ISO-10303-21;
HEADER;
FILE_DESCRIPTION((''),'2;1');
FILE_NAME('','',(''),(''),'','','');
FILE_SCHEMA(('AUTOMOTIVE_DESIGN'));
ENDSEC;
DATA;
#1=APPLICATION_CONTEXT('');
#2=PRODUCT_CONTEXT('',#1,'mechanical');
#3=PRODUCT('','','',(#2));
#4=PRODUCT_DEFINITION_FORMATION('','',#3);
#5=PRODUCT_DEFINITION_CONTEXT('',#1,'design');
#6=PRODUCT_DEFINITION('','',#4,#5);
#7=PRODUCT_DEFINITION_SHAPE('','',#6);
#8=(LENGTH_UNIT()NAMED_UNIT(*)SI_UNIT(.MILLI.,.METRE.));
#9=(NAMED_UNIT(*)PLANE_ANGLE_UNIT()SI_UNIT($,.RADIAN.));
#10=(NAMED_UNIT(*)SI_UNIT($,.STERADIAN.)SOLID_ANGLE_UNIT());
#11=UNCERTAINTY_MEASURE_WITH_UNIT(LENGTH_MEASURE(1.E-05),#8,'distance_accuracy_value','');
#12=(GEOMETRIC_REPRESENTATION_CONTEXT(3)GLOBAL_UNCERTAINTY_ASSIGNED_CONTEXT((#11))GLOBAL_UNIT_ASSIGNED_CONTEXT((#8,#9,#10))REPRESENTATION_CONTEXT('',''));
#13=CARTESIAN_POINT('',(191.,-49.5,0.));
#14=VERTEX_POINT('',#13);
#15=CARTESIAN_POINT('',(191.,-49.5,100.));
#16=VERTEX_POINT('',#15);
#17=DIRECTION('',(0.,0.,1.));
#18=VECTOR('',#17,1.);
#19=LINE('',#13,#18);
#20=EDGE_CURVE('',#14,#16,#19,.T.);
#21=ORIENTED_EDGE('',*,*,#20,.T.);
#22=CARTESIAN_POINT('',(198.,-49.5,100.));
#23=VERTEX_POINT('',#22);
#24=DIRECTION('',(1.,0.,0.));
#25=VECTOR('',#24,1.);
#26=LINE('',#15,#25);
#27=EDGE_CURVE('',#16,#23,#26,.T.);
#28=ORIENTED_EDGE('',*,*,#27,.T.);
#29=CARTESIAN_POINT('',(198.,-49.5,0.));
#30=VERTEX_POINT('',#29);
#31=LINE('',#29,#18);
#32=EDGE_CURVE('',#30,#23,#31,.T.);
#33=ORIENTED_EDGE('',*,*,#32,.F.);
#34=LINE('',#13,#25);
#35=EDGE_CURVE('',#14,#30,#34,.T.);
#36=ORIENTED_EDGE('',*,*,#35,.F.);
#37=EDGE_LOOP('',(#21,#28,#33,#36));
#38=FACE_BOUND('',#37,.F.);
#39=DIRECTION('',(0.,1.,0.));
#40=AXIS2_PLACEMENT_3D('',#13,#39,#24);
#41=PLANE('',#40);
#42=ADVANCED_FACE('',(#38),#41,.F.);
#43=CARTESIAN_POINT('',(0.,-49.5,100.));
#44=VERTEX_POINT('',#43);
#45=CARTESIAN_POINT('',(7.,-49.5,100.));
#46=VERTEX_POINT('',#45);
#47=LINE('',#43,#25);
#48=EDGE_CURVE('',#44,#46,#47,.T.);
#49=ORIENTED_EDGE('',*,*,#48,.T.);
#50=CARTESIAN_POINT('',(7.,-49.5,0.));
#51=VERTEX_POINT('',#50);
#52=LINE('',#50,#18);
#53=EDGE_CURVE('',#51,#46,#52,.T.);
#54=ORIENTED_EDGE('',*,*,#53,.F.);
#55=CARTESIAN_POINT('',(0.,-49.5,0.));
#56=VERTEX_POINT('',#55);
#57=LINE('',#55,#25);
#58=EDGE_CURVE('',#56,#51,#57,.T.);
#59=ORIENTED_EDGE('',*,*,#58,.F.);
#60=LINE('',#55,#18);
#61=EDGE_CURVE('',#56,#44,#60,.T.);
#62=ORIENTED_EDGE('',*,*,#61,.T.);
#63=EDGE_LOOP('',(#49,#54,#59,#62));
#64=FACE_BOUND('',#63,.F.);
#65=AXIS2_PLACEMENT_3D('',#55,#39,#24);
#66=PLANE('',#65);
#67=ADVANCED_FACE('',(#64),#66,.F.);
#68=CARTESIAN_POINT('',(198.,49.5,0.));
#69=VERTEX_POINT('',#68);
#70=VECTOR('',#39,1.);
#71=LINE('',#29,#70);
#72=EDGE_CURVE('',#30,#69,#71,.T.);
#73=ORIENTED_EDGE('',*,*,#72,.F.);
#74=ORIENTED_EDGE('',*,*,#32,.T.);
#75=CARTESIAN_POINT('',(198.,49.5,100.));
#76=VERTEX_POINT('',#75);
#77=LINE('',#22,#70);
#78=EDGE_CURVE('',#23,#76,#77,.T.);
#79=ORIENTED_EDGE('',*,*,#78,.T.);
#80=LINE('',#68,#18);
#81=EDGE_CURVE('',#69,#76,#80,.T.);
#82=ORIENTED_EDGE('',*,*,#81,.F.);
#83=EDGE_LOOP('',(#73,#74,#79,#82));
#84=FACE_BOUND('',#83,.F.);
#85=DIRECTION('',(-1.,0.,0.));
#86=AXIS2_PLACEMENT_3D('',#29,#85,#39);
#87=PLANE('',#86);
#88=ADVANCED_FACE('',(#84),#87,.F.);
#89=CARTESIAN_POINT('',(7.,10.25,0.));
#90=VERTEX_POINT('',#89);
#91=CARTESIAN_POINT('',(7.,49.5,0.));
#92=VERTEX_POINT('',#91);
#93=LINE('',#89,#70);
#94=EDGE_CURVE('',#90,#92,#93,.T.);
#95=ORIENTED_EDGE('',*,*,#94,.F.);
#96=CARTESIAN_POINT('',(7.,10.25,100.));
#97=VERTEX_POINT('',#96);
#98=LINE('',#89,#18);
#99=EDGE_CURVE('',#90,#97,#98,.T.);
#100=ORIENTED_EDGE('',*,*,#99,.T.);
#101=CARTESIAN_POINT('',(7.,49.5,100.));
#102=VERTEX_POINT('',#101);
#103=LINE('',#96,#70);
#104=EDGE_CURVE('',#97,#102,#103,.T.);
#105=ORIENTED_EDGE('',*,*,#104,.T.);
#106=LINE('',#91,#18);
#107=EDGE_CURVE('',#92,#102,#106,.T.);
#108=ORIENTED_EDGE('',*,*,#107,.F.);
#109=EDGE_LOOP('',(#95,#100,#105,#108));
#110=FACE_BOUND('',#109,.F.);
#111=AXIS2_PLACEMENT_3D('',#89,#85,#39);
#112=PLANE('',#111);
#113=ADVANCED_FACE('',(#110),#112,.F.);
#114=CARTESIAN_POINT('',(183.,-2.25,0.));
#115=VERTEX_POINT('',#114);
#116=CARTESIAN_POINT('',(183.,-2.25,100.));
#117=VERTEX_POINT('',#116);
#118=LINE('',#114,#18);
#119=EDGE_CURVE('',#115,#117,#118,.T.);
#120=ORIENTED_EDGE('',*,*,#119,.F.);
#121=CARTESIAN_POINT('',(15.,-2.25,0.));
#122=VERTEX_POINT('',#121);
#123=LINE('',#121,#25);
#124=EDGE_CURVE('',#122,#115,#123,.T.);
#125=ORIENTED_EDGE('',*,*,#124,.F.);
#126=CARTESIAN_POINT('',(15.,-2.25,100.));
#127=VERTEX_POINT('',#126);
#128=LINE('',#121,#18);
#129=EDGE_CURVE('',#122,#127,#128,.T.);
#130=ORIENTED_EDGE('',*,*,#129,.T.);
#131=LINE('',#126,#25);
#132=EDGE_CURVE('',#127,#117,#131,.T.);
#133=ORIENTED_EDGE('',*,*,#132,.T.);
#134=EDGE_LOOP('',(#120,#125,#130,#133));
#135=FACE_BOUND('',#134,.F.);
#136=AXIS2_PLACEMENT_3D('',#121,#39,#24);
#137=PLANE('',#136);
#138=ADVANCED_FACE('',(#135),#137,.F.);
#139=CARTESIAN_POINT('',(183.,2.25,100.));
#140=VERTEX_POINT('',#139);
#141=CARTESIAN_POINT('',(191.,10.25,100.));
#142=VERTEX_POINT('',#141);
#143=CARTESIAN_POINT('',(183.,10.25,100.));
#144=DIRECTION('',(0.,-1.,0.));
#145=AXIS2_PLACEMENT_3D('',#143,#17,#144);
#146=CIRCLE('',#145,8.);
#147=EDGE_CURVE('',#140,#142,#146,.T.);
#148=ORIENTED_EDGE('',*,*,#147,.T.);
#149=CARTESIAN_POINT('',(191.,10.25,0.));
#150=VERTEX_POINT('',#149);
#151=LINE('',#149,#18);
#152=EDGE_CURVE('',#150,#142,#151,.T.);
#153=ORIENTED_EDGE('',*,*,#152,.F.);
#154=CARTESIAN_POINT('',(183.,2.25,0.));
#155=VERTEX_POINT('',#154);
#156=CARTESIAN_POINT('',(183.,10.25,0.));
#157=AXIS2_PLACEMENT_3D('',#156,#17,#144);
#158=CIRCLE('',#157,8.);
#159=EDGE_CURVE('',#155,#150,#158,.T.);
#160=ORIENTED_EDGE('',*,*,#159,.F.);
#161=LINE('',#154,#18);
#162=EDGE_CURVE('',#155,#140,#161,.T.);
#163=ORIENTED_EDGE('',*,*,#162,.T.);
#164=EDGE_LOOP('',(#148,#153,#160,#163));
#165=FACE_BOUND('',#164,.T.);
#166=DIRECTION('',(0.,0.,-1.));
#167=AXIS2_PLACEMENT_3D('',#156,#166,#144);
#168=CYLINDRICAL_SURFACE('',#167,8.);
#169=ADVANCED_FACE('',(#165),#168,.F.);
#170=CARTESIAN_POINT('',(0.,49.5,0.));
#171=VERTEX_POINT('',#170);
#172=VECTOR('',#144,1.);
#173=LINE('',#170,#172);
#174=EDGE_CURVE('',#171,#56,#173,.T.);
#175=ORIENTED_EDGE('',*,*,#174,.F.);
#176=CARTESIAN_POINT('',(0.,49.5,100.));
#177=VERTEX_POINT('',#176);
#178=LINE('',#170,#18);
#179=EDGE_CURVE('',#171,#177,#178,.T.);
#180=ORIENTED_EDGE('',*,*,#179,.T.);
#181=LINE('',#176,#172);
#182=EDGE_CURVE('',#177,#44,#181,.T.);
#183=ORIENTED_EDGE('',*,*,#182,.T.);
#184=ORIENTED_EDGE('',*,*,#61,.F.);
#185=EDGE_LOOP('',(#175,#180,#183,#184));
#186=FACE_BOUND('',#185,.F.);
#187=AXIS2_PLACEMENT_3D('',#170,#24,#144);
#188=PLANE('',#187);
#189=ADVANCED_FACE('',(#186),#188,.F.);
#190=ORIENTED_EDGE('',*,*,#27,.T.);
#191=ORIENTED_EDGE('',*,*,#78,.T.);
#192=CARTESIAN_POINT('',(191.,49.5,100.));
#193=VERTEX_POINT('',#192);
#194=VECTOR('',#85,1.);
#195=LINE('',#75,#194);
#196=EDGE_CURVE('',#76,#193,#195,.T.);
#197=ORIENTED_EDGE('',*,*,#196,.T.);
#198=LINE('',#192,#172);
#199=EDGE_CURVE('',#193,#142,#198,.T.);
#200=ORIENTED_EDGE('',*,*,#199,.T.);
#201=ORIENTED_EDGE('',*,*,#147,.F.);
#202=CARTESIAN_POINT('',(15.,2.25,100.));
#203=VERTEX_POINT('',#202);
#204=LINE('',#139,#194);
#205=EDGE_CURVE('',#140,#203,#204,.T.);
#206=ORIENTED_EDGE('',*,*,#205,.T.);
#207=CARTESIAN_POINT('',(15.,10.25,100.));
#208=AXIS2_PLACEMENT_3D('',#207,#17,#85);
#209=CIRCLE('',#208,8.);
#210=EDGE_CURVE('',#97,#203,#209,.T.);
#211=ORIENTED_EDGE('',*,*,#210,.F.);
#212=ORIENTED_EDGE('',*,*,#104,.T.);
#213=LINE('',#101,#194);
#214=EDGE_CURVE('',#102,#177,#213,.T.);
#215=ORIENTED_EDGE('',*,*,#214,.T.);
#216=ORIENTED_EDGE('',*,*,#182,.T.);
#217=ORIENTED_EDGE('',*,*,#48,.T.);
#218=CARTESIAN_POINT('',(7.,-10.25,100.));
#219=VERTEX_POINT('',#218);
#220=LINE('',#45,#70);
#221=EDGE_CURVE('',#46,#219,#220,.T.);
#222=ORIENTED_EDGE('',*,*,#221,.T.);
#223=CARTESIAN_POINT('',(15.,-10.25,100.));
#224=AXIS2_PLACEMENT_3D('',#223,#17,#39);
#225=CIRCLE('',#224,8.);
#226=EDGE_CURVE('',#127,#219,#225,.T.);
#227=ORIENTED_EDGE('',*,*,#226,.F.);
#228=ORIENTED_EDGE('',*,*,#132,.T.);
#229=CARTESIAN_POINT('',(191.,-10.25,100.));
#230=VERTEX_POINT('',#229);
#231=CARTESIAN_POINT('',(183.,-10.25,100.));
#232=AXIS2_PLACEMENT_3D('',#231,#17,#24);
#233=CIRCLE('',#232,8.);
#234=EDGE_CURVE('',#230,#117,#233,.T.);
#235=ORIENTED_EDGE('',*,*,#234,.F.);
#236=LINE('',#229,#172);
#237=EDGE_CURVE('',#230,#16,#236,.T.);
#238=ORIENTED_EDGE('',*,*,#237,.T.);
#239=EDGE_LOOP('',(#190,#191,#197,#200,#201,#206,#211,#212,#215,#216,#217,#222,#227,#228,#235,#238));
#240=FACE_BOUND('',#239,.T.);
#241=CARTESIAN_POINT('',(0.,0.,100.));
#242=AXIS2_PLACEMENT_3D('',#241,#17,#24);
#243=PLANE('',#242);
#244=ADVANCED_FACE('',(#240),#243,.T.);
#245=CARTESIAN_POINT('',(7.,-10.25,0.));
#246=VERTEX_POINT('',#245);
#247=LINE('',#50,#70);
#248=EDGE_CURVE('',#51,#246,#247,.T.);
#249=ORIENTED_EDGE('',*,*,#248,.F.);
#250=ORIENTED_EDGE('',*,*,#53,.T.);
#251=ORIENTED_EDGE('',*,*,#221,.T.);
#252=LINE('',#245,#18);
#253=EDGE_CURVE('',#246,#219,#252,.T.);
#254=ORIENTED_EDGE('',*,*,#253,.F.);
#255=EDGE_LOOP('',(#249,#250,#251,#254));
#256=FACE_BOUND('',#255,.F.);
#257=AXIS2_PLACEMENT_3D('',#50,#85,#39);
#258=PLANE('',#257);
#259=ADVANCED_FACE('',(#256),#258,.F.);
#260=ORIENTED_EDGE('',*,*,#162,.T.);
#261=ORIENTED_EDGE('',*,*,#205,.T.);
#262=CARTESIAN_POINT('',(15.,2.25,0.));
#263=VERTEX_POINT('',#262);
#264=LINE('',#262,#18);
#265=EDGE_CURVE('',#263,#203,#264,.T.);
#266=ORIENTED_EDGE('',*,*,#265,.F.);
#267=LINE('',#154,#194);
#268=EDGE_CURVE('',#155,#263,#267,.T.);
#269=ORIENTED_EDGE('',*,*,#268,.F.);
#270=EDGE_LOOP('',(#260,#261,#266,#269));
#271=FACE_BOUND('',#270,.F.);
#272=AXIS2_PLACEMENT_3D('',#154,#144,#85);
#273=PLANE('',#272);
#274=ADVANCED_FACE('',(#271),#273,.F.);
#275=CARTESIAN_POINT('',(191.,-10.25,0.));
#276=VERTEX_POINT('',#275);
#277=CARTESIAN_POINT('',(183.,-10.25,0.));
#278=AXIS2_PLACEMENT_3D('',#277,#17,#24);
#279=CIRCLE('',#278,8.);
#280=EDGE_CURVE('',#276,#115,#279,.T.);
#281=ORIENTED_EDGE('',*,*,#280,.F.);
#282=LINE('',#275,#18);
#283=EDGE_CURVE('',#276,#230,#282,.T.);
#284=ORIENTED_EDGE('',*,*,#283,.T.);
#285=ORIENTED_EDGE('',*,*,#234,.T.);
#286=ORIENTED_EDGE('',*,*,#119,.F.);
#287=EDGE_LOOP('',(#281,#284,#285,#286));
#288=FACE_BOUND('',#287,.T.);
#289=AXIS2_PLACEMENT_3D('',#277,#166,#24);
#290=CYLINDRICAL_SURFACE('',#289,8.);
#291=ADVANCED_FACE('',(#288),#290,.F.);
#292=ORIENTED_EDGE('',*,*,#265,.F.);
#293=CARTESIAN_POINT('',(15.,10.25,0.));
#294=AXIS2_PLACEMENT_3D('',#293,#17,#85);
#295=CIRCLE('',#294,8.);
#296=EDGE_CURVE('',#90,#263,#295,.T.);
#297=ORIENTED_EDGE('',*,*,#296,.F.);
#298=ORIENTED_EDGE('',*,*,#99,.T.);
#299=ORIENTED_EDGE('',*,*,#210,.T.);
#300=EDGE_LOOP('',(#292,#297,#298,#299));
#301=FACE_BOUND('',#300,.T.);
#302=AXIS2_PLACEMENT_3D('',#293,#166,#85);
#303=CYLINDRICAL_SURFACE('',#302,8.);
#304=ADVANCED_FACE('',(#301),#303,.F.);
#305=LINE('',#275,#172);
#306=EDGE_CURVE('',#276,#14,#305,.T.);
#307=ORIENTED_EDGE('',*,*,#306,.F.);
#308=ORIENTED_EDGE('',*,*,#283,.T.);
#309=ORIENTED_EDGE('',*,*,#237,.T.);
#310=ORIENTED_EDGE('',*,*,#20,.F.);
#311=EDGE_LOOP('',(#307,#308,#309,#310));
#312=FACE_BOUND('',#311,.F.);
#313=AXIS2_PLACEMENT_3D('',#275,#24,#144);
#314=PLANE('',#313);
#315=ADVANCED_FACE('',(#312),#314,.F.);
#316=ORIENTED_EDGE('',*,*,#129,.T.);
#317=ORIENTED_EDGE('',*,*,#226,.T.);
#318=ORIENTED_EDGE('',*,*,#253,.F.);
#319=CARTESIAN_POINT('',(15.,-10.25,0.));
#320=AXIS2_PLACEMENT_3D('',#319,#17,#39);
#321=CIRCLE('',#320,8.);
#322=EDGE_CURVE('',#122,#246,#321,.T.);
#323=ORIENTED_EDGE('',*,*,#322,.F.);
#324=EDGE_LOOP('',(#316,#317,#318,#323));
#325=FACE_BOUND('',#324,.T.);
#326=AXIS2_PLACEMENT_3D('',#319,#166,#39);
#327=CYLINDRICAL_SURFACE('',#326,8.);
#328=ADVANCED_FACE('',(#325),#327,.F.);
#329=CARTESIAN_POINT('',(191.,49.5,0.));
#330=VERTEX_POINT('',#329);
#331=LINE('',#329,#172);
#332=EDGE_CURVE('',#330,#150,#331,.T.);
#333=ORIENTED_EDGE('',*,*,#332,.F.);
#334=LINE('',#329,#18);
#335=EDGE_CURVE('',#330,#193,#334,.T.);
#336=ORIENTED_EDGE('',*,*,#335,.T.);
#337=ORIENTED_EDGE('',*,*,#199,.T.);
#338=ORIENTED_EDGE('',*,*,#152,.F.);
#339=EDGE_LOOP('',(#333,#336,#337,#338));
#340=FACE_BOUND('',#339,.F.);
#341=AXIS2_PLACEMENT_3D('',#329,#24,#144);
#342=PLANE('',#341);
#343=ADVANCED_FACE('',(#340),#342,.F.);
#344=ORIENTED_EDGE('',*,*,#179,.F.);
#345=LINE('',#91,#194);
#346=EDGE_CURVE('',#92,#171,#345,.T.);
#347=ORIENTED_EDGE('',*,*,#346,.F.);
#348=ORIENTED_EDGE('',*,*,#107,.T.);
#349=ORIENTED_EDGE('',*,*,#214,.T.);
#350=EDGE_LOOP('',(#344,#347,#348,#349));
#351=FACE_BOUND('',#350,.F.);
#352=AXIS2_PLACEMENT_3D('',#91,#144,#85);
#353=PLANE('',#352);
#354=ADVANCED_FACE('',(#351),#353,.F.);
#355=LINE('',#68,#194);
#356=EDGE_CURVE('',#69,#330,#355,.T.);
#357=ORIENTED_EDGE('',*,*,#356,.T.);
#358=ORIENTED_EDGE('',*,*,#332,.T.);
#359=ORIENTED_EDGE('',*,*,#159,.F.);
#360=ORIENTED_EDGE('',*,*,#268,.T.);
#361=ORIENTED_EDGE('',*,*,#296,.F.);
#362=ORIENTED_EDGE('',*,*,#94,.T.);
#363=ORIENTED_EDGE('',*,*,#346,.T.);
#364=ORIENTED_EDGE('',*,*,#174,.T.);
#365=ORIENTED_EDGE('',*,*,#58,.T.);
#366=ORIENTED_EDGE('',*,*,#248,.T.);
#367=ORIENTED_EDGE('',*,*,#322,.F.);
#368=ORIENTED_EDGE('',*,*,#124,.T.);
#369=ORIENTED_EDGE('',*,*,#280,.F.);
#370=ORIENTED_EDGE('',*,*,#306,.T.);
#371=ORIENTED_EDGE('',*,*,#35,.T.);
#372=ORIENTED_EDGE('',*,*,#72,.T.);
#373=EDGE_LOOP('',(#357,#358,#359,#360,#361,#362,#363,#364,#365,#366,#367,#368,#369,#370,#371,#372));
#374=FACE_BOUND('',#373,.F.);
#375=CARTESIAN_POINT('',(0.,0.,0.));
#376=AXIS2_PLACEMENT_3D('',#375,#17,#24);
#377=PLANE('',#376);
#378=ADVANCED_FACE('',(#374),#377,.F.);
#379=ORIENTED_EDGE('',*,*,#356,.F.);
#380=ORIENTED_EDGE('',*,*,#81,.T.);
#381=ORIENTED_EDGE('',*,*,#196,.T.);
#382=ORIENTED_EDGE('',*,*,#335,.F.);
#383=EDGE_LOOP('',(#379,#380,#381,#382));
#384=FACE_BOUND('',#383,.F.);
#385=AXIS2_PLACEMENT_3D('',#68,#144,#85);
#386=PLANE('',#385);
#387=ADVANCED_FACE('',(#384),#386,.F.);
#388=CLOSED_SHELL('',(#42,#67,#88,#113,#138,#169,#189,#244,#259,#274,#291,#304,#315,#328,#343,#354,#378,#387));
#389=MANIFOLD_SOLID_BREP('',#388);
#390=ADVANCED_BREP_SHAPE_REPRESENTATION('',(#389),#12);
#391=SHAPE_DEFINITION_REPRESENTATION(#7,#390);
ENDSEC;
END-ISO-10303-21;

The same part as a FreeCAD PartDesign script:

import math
import FreeCAD as App
import Part
import Sketcher
from FreeCAD import Vector
Q = App.Units.Quantity

doc = App.newDocument("Part")
body = doc.addObject("PartDesign::Body", "Body")

# Sketch on XY plane
sketch1 = doc.addObject("Sketcher::SketchObject", "Sketch")
body.addObject(sketch1)
sketch1.AttachmentSupport = (doc.XY_Plane, [""])
sketch1.MapMode = "FlatFace"
sketch1.addGeometry([
    Part.ArcOfCircle(Part.Circle(Vector(183, 10.25, 0), Vector(0, 0, 1), 8), math.radians(-90), math.radians(0)),  # 0
    Part.LineSegment(Vector(183, 2.25, 0), Vector(15, 2.25, 0)),  # 1
    Part.ArcOfCircle(Part.Circle(Vector(15, 10.25, 0), Vector(0, 0, 1), 8), math.radians(180), math.radians(270)),  # 2
    Part.LineSegment(Vector(7, 10.25, 0), Vector(7, 49.5, 0)),  # 3
    Part.LineSegment(Vector(7, 49.5, 0), Vector(0, 49.5, 0)),  # 4
    Part.LineSegment(Vector(0, 49.5, 0), Vector(0, -49.5, 0)),  # 5
    Part.LineSegment(Vector(0, -49.5, 0), Vector(7, -49.5, 0)),  # 6
    Part.LineSegment(Vector(7, -49.5, 0), Vector(7, -10.25, 0)),  # 7
    Part.ArcOfCircle(Part.Circle(Vector(15, -10.25, 0), Vector(0, 0, 1), 8), math.radians(90), math.radians(180)),  # 8
    Part.LineSegment(Vector(15, -2.25, 0), Vector(183, -2.25, 0)),  # 9
    Part.ArcOfCircle(Part.Circle(Vector(183, -10.25, 0), Vector(0, 0, 1), 8), math.radians(0), math.radians(90)),  # 10
    Part.LineSegment(Vector(191, -10.25, 0), Vector(191, -49.5, 0)),  # 11
    Part.LineSegment(Vector(191, -49.5, 0), Vector(198, -49.5, 0)),  # 12
    Part.LineSegment(Vector(198, -49.5, 0), Vector(198, 49.5, 0)),  # 13
    Part.LineSegment(Vector(198, 49.5, 0), Vector(191, 49.5, 0)),  # 14
    Part.LineSegment(Vector(191, 49.5, 0), Vector(191, 10.25, 0)),  # 15
], False)
sketch1.addConstraint([
    Sketcher.Constraint("Tangent", 0, 1, 1, 1),
    Sketcher.Constraint("Tangent", 1, 2, 2, 2),
    Sketcher.Constraint("Tangent", 2, 1, 3, 1),
    Sketcher.Constraint("Coincident", 3, 2, 4, 1),
    Sketcher.Constraint("Coincident", 4, 2, 5, 1),
    Sketcher.Constraint("Coincident", 5, 2, 6, 1),
    Sketcher.Constraint("Coincident", 6, 2, 7, 1),
    Sketcher.Constraint("Tangent", 7, 2, 8, 2),
    Sketcher.Constraint("Tangent", 8, 1, 9, 1),
    Sketcher.Constraint("Tangent", 9, 2, 10, 2),
    Sketcher.Constraint("Tangent", 10, 1, 11, 1),
    Sketcher.Constraint("Coincident", 11, 2, 12, 1),
    Sketcher.Constraint("Coincident", 12, 2, 13, 1),
    Sketcher.Constraint("Coincident", 13, 2, 14, 1),
    Sketcher.Constraint("Coincident", 14, 2, 15, 1),
    Sketcher.Constraint("Tangent", 15, 2, 0, 2),
    Sketcher.Constraint("Horizontal", 1),
    Sketcher.Constraint("Vertical", 3),
    Sketcher.Constraint("Horizontal", 4),
    Sketcher.Constraint("Vertical", 5),
    Sketcher.Constraint("Horizontal", 6),
    Sketcher.Constraint("Vertical", 7),
    Sketcher.Constraint("Horizontal", 9),
    Sketcher.Constraint("Vertical", 11),
    Sketcher.Constraint("Horizontal", 12),
    Sketcher.Constraint("Vertical", 13),
    Sketcher.Constraint("Horizontal", 14),
    Sketcher.Constraint("Vertical", 15),
    Sketcher.Constraint("Equal", 0, 2),
    Sketcher.Constraint("Equal", 2, 8),
    Sketcher.Constraint("Equal", 8, 10),
    Sketcher.Constraint("Symmetric", 4, 2, 5, 2, -1, 1),
    Sketcher.Constraint("Symmetric", 2, 3, 8, 3, -1),
    Sketcher.Constraint("Symmetric", 11, 2, 14, 2, -1),
    Sketcher.Constraint("Horizontal", 6, 2, 11, 2),
    Sketcher.Constraint("Equal", 6, 12),
    Sketcher.Constraint("Radius", 0, Q("8 mm")),
    Sketcher.Constraint("DistanceX", 1, 2, 1, 1, Q("168 mm")),
    Sketcher.Constraint("DistanceX", 4, 2, 4, 1, Q("7 mm")),
    Sketcher.Constraint("DistanceY", 5, 2, 5, 1, Q("99 mm")),
    Sketcher.Constraint("DistanceY", 3, 1, 3, 2, Q("39.25 mm")),
])
pad1 = doc.addObject("PartDesign::Pad", "Pad")
body.addObject(pad1)
pad1.Profile = sketch1
pad1.Length = 100

doc.recompute()
